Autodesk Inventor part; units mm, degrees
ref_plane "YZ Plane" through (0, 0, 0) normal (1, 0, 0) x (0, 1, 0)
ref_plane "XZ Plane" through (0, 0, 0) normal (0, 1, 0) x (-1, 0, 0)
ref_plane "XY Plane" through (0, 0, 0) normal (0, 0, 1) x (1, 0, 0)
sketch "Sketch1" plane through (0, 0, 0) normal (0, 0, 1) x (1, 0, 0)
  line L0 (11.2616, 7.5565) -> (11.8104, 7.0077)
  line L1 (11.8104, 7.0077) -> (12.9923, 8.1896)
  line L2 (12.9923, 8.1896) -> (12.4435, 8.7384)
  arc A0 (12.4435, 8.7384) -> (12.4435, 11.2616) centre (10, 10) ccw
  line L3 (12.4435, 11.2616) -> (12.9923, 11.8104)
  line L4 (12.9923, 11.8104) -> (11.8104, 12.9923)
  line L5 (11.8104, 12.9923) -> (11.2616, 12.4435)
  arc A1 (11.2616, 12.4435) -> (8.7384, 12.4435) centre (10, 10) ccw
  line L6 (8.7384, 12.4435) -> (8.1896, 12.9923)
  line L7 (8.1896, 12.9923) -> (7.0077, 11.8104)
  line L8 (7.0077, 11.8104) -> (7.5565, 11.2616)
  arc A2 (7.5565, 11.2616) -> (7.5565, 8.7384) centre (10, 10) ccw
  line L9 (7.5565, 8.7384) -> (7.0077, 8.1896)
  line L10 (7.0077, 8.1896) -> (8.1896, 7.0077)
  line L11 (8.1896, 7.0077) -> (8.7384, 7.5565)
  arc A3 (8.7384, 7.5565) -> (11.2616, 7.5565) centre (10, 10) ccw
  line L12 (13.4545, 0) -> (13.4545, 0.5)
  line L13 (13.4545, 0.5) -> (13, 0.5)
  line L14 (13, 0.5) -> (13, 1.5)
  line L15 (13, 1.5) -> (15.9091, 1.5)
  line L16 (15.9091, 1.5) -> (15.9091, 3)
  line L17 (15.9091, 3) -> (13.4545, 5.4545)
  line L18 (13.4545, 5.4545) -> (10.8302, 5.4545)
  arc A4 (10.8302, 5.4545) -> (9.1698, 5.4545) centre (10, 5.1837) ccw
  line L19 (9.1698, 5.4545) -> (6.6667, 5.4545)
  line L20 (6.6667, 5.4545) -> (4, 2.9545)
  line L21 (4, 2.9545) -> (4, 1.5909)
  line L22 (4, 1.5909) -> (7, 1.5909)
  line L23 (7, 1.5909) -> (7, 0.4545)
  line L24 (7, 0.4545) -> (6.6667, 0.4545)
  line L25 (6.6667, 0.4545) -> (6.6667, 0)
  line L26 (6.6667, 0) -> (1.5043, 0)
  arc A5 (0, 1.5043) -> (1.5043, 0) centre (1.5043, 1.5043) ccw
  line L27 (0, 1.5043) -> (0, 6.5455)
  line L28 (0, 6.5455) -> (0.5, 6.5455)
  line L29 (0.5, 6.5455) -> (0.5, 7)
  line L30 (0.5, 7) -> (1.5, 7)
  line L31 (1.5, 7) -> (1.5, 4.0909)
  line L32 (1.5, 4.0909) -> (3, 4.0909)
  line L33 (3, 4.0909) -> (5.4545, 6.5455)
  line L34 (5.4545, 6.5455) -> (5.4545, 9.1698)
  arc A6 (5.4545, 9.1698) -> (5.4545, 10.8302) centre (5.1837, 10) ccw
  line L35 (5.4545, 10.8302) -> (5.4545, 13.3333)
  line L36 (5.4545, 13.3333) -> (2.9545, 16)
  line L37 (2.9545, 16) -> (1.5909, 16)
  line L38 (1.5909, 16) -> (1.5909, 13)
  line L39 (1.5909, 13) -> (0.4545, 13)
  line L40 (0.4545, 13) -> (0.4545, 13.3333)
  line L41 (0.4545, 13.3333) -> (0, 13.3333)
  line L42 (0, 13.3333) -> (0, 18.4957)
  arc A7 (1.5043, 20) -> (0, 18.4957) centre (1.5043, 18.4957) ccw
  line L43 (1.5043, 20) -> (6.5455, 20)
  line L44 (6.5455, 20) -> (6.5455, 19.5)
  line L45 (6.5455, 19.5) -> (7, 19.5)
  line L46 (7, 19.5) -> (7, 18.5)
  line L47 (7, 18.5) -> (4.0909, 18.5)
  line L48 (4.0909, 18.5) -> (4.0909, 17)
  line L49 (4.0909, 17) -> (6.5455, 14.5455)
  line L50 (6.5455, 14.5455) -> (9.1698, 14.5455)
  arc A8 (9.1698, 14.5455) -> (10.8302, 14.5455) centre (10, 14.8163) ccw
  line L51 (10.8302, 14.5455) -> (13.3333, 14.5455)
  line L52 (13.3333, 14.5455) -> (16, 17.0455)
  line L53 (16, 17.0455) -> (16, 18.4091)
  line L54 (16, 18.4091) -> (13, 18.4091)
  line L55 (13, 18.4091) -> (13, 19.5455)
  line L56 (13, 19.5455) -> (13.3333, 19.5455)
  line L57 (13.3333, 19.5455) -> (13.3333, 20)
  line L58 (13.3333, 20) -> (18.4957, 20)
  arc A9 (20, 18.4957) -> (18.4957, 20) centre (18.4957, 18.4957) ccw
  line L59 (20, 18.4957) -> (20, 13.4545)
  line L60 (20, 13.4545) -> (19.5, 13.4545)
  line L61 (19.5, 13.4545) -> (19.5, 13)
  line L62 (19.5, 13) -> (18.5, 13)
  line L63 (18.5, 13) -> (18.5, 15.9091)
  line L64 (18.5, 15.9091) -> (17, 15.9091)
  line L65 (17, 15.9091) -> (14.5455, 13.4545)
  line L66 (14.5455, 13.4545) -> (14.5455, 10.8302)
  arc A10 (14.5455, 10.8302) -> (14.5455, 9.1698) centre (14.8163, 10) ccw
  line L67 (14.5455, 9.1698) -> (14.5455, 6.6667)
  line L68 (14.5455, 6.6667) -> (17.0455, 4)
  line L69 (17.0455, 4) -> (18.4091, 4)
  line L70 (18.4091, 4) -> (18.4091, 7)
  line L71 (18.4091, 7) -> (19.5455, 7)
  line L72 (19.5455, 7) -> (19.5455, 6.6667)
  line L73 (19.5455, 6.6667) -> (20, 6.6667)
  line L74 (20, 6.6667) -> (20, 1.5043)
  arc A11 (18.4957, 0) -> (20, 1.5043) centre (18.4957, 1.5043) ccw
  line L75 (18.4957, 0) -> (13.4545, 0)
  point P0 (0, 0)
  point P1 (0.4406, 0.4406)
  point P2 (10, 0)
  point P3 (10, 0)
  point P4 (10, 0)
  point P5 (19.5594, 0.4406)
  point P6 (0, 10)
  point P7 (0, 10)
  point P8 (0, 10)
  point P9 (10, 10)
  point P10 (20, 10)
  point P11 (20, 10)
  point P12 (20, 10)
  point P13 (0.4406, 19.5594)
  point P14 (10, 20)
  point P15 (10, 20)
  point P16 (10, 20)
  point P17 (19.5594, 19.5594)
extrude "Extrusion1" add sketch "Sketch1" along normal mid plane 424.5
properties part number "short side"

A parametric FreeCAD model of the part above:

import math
import FreeCAD as App
import Part
import Sketcher
from FreeCAD import Vector

doc = App.newDocument("Part")
body = doc.addObject("PartDesign::Body", "Body")

sketch1 = body.newObject("Sketcher::SketchObject", "Sketch")
sketch1.AttachmentSupport = (doc.getObject("XY_Plane"), [""])
sketch1.MapMode = "FlatFace"
sketch1.addGeometry(Part.LineSegment(Vector(13.45, 0.5, 0), Vector(13.45, 0, 0)), False)
sketch1.addGeometry(Part.LineSegment(Vector(13.45, 0, 0), Vector(18.5, 0, 0)), False)
sketch1.addGeometry(Part.ArcOfCircle(Part.Circle(Vector(18.5, 1.5, 0), Vector(0, 0, 1), 1.5), math.radians(-90), math.radians(0)), False)
sketch1.addGeometry(Part.LineSegment(Vector(20, 1.5, 0), Vector(20, 6.67, 0)), False)
sketch1.addGeometry(Part.LineSegment(Vector(20, 6.67, 0), Vector(19.55, 6.67, 0)), False)
sketch1.addGeometry(Part.LineSegment(Vector(19.55, 6.67, 0), Vector(19.55, 7, 0)), False)
sketch1.addGeometry(Part.LineSegment(Vector(19.55, 7, 0), Vector(18.41, 7, 0)), False)
sketch1.addGeometry(Part.LineSegment(Vector(18.41, 7, 0), Vector(18.41, 4, 0)), False)
sketch1.addGeometry(Part.LineSegment(Vector(18.41, 4, 0), Vector(17.05, 4, 0)), False)
sketch1.addGeometry(Part.LineSegment(Vector(17.05, 4, 0), Vector(14.55, 6.67, 0)), False)
sketch1.addGeometry(Part.LineSegment(Vector(14.55, 6.67, 0), Vector(14.55, 9.17, 0)), False)
sketch1.addGeometry(Part.ArcOfCircle(Part.Circle(Vector(14.82, 10, 0), Vector(0, 0, 1), 0.87), math.radians(108), math.radians(252)), False)
sketch1.addGeometry(Part.LineSegment(Vector(14.55, 10.83, 0), Vector(14.55, 13.45, 0)), False)
sketch1.addGeometry(Part.LineSegment(Vector(14.55, 13.45, 0), Vector(17, 15.91, 0)), False)
sketch1.addGeometry(Part.LineSegment(Vector(17, 15.91, 0), Vector(18.5, 15.91, 0)), False)
sketch1.addGeometry(Part.LineSegment(Vector(18.5, 15.91, 0), Vector(18.5, 13, 0)), False)
sketch1.addGeometry(Part.LineSegment(Vector(18.5, 13, 0), Vector(19.5, 13, 0)), False)
sketch1.addGeometry(Part.LineSegment(Vector(19.5, 13, 0), Vector(19.5, 13.45, 0)), False)
sketch1.addGeometry(Part.LineSegment(Vector(19.5, 13.45, 0), Vector(20, 13.45, 0)), False)
sketch1.addGeometry(Part.LineSegment(Vector(20, 13.45, 0), Vector(20, 18.5, 0)), False)
sketch1.addGeometry(Part.ArcOfCircle(Part.Circle(Vector(18.5, 18.5, 0), Vector(0, 0, 1), 1.5), math.radians(0), math.radians(90)), False)
sketch1.addGeometry(Part.LineSegment(Vector(18.5, 20, 0), Vector(13.33, 20, 0)), False)
sketch1.addGeometry(Part.LineSegment(Vector(13.33, 20, 0), Vector(13.33, 19.55, 0)), False)
sketch1.addGeometry(Part.LineSegment(Vector(13.33, 19.55, 0), Vector(13, 19.55, 0)), False)
sketch1.addGeometry(Part.LineSegment(Vector(13, 19.55, 0), Vector(13, 18.41, 0)), False)
sketch1.addGeometry(Part.LineSegment(Vector(13, 18.41, 0), Vector(16, 18.41, 0)), False)
sketch1.addGeometry(Part.LineSegment(Vector(16, 18.41, 0), Vector(16, 17.05, 0)), False)
sketch1.addGeometry(Part.LineSegment(Vector(16, 17.05, 0), Vector(13.33, 14.55, 0)), False)
sketch1.addGeometry(Part.LineSegment(Vector(13.33, 14.55, 0), Vector(10.83, 14.55, 0)), False)
sketch1.addGeometry(Part.ArcOfCircle(Part.Circle(Vector(10, 14.82, 0), Vector(0, 0, 1), 0.87), math.radians(-162), math.radians(-18)), False)
sketch1.addGeometry(Part.LineSegment(Vector(9.17, 14.55, 0), Vector(6.55, 14.55, 0)), False)
sketch1.addGeometry(Part.LineSegment(Vector(6.55, 14.55, 0), Vector(4.09, 17, 0)), False)
sketch1.addGeometry(Part.LineSegment(Vector(4.09, 17, 0), Vector(4.09, 18.5, 0)), False)
sketch1.addGeometry(Part.LineSegment(Vector(4.09, 18.5, 0), Vector(7, 18.5, 0)), False)
sketch1.addGeometry(Part.LineSegment(Vector(7, 18.5, 0), Vector(7, 19.5, 0)), False)
sketch1.addGeometry(Part.LineSegment(Vector(7, 19.5, 0), Vector(6.55, 19.5, 0)), False)
sketch1.addGeometry(Part.LineSegment(Vector(6.55, 19.5, 0), Vector(6.55, 20, 0)), False)
sketch1.addGeometry(Part.LineSegment(Vector(6.55, 20, 0), Vector(1.5, 20, 0)), False)
sketch1.addGeometry(Part.ArcOfCircle(Part.Circle(Vector(1.5, 18.5, 0), Vector(0, 0, 1), 1.5), math.radians(90), math.radians(180)), False)
sketch1.addGeometry(Part.LineSegment(Vector(0, 18.5, 0), Vector(0, 13.33, 0)), False)
sketch1.addGeometry(Part.LineSegment(Vector(0, 13.33, 0), Vector(0.45, 13.33, 0)), False)
sketch1.addGeometry(Part.LineSegment(Vector(0.45, 13.33, 0), Vector(0.45, 13, 0)), False)
sketch1.addGeometry(Part.LineSegment(Vector(0.45, 13, 0), Vector(1.59, 13, 0)), False)
sketch1.addGeometry(Part.LineSegment(Vector(1.59, 13, 0), Vector(1.59, 16, 0)), False)
sketch1.addGeometry(Part.LineSegment(Vector(1.59, 16, 0), Vector(2.95, 16, 0)), False)
sketch1.addGeometry(Part.LineSegment(Vector(2.95, 16, 0), Vector(5.45, 13.33, 0)), False)
sketch1.addGeometry(Part.LineSegment(Vector(5.45, 13.33, 0), Vector(5.45, 10.83, 0)), False)
sketch1.addGeometry(Part.ArcOfCircle(Part.Circle(Vector(5.18, 10, 0), Vector(0, 0, 1), 0.87), math.radians(-72), math.radians(72)), False)
sketch1.addGeometry(Part.LineSegment(Vector(5.45, 9.17, 0), Vector(5.45, 6.55, 0)), False)
sketch1.addGeometry(Part.LineSegment(Vector(5.45, 6.55, 0), Vector(3, 4.09, 0)), False)
sketch1.addGeometry(Part.LineSegment(Vector(3, 4.09, 0), Vector(1.5, 4.09, 0)), False)
sketch1.addGeometry(Part.LineSegment(Vector(1.5, 4.09, 0), Vector(1.5, 7, 0)), False)
sketch1.addGeometry(Part.LineSegment(Vector(1.5, 7, 0), Vector(0.5, 7, 0)), False)
sketch1.addGeometry(Part.LineSegment(Vector(0.5, 7, 0), Vector(0.5, 6.55, 0)), False)
sketch1.addGeometry(Part.LineSegment(Vector(0.5, 6.55, 0), Vector(0, 6.55, 0)), False)
sketch1.addGeometry(Part.LineSegment(Vector(0, 6.55, 0), Vector(0, 1.5, 0)), False)
sketch1.addGeometry(Part.ArcOfCircle(Part.Circle(Vector(1.5, 1.5, 0), Vector(0, 0, 1), 1.5), math.radians(180), math.radians(270)), False)
sketch1.addGeometry(Part.LineSegment(Vector(1.5, 0, 0), Vector(6.67, 0, 0)), False)
sketch1.addGeometry(Part.LineSegment(Vector(6.67, 0, 0), Vector(6.67, 0.45, 0)), False)
sketch1.addGeometry(Part.LineSegment(Vector(6.67, 0.45, 0), Vector(7, 0.45, 0)), False)
sketch1.addGeometry(Part.LineSegment(Vector(7, 0.45, 0), Vector(7, 1.59, 0)), False)
sketch1.addGeometry(Part.LineSegment(Vector(7, 1.59, 0), Vector(4, 1.59, 0)), False)
sketch1.addGeometry(Part.LineSegment(Vector(4, 1.59, 0), Vector(4, 2.95, 0)), False)
sketch1.addGeometry(Part.LineSegment(Vector(4, 2.95, 0), Vector(6.67, 5.45, 0)), False)
sketch1.addGeometry(Part.LineSegment(Vector(6.67, 5.45, 0), Vector(9.17, 5.45, 0)), False)
sketch1.addGeometry(Part.ArcOfCircle(Part.Circle(Vector(10, 5.18, 0), Vector(0, 0, 1), 0.87), math.radians(18), math.radians(162)), False)
sketch1.addGeometry(Part.LineSegment(Vector(10.83, 5.45, 0), Vector(13.45, 5.45, 0)), False)
sketch1.addGeometry(Part.LineSegment(Vector(13.45, 5.45, 0), Vector(15.91, 3, 0)), False)
sketch1.addGeometry(Part.LineSegment(Vector(15.91, 3, 0), Vector(15.91, 1.5, 0)), False)
sketch1.addGeometry(Part.LineSegment(Vector(15.91, 1.5, 0), Vector(13, 1.5, 0)), False)
sketch1.addGeometry(Part.LineSegment(Vector(13, 1.5, 0), Vector(13, 0.5, 0)), False)
sketch1.addGeometry(Part.LineSegment(Vector(13, 0.5, 0), Vector(13.45, 0.5, 0)), False)
sketch1.addGeometry(Part.LineSegment(Vector(11.81, 7.01, 0), Vector(11.26, 7.56, 0)), False)
sketch1.addGeometry(Part.ArcOfCircle(Part.Circle(Vector(10, 10, 0), Vector(0, 0, 1), 2.75), math.radians(-117), math.radians(-63)), False)
sketch1.addGeometry(Part.LineSegment(Vector(8.74, 7.56, 0), Vector(8.19, 7.01, 0)), False)
sketch1.addGeometry(Part.LineSegment(Vector(8.19, 7.01, 0), Vector(7.01, 8.19, 0)), False)
sketch1.addGeometry(Part.LineSegment(Vector(7.01, 8.19, 0), Vector(7.56, 8.74, 0)), False)
sketch1.addGeometry(Part.ArcOfCircle(Part.Circle(Vector(10, 10, 0), Vector(0, 0, 1), 2.75), math.radians(153), math.radians(207)), False)
sketch1.addGeometry(Part.LineSegment(Vector(7.56, 11.26, 0), Vector(7.01, 11.81, 0)), False)
sketch1.addGeometry(Part.LineSegment(Vector(7.01, 11.81, 0), Vector(8.19, 12.99, 0)), False)
sketch1.addGeometry(Part.LineSegment(Vector(8.19, 12.99, 0), Vector(8.74, 12.44, 0)), False)
sketch1.addGeometry(Part.ArcOfCircle(Part.Circle(Vector(10, 10, 0), Vector(0, 0, 1), 2.75), math.radians(63), math.radians(117)), False)
sketch1.addGeometry(Part.LineSegment(Vector(11.26, 12.44, 0), Vector(11.81, 12.99, 0)), False)
sketch1.addGeometry(Part.LineSegment(Vector(11.81, 12.99, 0), Vector(12.99, 11.81, 0)), False)
sketch1.addGeometry(Part.LineSegment(Vector(12.99, 11.81, 0), Vector(12.44, 11.26, 0)), False)
sketch1.addGeometry(Part.ArcOfCircle(Part.Circle(Vector(10, 10, 0), Vector(0, 0, 1), 2.75), math.radians(-27), math.radians(27)), False)
sketch1.addGeometry(Part.LineSegment(Vector(12.44, 8.74, 0), Vector(12.99, 8.19, 0)), False)
sketch1.addGeometry(Part.LineSegment(Vector(12.99, 8.19, 0), Vector(11.81, 7.01, 0)), False)
sketch1.addConstraint(Sketcher.Constraint("Coincident", 0, 2, 1, 1))
sketch1.addConstraint(Sketcher.Constraint("Tangent", 1, 2, 2, 1))
sketch1.addConstraint(Sketcher.Constraint("Tangent", 2, 2, 3, 1))
sketch1.addConstraint(Sketcher.Constraint("Coincident", 3, 2, 4, 1))
sketch1.addConstraint(Sketcher.Constraint("Coincident", 4, 2, 5, 1))
sketch1.addConstraint(Sketcher.Constraint("Coincident", 5, 2, 6, 1))
sketch1.addConstraint(Sketcher.Constraint("Coincident", 6, 2, 7, 1))
sketch1.addConstraint(Sketcher.Constraint("Coincident", 7, 2, 8, 1))
sketch1.addConstraint(Sketcher.Constraint("Coincident", 8, 2, 9, 1))
sketch1.addConstraint(Sketcher.Constraint("Coincident", 9, 2, 10, 1))
sketch1.addConstraint(Sketcher.Constraint("Coincident", 10, 2, 11, 2))
sketch1.addConstraint(Sketcher.Constraint("Coincident", 11, 1, 12, 1))
sketch1.addConstraint(Sketcher.Constraint("Coincident", 12, 2, 13, 1))
sketch1.addConstraint(Sketcher.Constraint("Coincident", 13, 2, 14, 1))
sketch1.addConstraint(Sketcher.Constraint("Coincident", 14, 2, 15, 1))
sketch1.addConstraint(Sketcher.Constraint("Coincident", 15, 2, 16, 1))
sketch1.addConstraint(Sketcher.Constraint("Coincident", 16, 2, 17, 1))
sketch1.addConstraint(Sketcher.Constraint("Coincident", 17, 2, 18, 1))
sketch1.addConstraint(Sketcher.Constraint("Coincident", 18, 2, 19, 1))
sketch1.addConstraint(Sketcher.Constraint("Tangent", 19, 2, 20, 1))
sketch1.addConstraint(Sketcher.Constraint("Tangent", 20, 2, 21, 1))
sketch1.addConstraint(Sketcher.Constraint("Coincident", 21, 2, 22, 1))
sketch1.addConstraint(Sketcher.Constraint("Coincident", 22, 2, 23, 1))
sketch1.addConstraint(Sketcher.Constraint("Coincident", 23, 2, 24, 1))
sketch1.addConstraint(Sketcher.Constraint("Coincident", 24, 2, 25, 1))
sketch1.addConstraint(Sketcher.Constraint("Coincident", 25, 2, 26, 1))
sketch1.addConstraint(Sketcher.Constraint("Coincident", 26, 2, 27, 1))
sketch1.addConstraint(Sketcher.Constraint("Coincident", 27, 2, 28, 1))
sketch1.addConstraint(Sketcher.Constraint("Coincident", 28, 2, 29, 2))
sketch1.addConstraint(Sketcher.Constraint("Coincident", 29, 1, 30, 1))
sketch1.addConstraint(Sketcher.Constraint("Coincident", 30, 2, 31, 1))
sketch1.addConstraint(Sketcher.Constraint("Coincident", 31, 2, 32, 1))
sketch1.addConstraint(Sketcher.Constraint("Coincident", 32, 2, 33, 1))
sketch1.addConstraint(Sketcher.Constraint("Coincident", 33, 2, 34, 1))
sketch1.addConstraint(Sketcher.Constraint("Coincident", 34, 2, 35, 1))
sketch1.addConstraint(Sketcher.Constraint("Coincident", 35, 2, 36, 1))
sketch1.addConstraint(Sketcher.Constraint("Coincident", 36, 2, 37, 1))
sketch1.addConstraint(Sketcher.Constraint("Tangent", 37, 2, 38, 1))
sketch1.addConstraint(Sketcher.Constraint("Tangent", 38, 2, 39, 1))
sketch1.addConstraint(Sketcher.Constraint("Coincident", 39, 2, 40, 1))
sketch1.addConstraint(Sketcher.Constraint("Coincident", 40, 2, 41, 1))
sketch1.addConstraint(Sketcher.Constraint("Coincident", 41, 2, 42, 1))
sketch1.addConstraint(Sketcher.Constraint("Coincident", 42, 2, 43, 1))
sketch1.addConstraint(Sketcher.Constraint("Coincident", 43, 2, 44, 1))
sketch1.addConstraint(Sketcher.Constraint("Coincident", 44, 2, 45, 1))
sketch1.addConstraint(Sketcher.Constraint("Coincident", 45, 2, 46, 1))
sketch1.addConstraint(Sketcher.Constraint("Coincident", 46, 2, 47, 2))
sketch1.addConstraint(Sketcher.Constraint("Coincident", 47, 1, 48, 1))
sketch1.addConstraint(Sketcher.Constraint("Coincident", 48, 2, 49, 1))
sketch1.addConstraint(Sketcher.Constraint("Coincident", 49, 2, 50, 1))
sketch1.addConstraint(Sketcher.Constraint("Coincident", 50, 2, 51, 1))
sketch1.addConstraint(Sketcher.Constraint("Coincident", 51, 2, 52, 1))
sketch1.addConstraint(Sketcher.Constraint("Coincident", 52, 2, 53, 1))
sketch1.addConstraint(Sketcher.Constraint("Coincident", 53, 2, 54, 1))
sketch1.addConstraint(Sketcher.Constraint("Coincident", 54, 2, 55, 1))
sketch1.addConstraint(Sketcher.Constraint("Tangent", 55, 2, 56, 1))
sketch1.addConstraint(Sketcher.Constraint("Tangent", 56, 2, 57, 1))
sketch1.addConstraint(Sketcher.Constraint("Coincident", 57, 2, 58, 1))
sketch1.addConstraint(Sketcher.Constraint("Coincident", 58, 2, 59, 1))
sketch1.addConstraint(Sketcher.Constraint("Coincident", 59, 2, 60, 1))
sketch1.addConstraint(Sketcher.Constraint("Coincident", 60, 2, 61, 1))
sketch1.addConstraint(Sketcher.Constraint("Coincident", 61, 2, 62, 1))
sketch1.addConstraint(Sketcher.Constraint("Coincident", 62, 2, 63, 1))
sketch1.addConstraint(Sketcher.Constraint("Coincident", 63, 2, 64, 1))
sketch1.addConstraint(Sketcher.Constraint("Coincident", 64, 2, 65, 2))
sketch1.addConstraint(Sketcher.Constraint("Coincident", 65, 1, 66, 1))
sketch1.addConstraint(Sketcher.Constraint("Coincident", 66, 2, 67, 1))
sketch1.addConstraint(Sketcher.Constraint("Coincident", 67, 2, 68, 1))
sketch1.addConstraint(Sketcher.Constraint("Coincident", 68, 2, 69, 1))
sketch1.addConstraint(Sketcher.Constraint("Coincident", 69, 2, 70, 1))
sketch1.addConstraint(Sketcher.Constraint("Coincident", 70, 2, 71, 1))
sketch1.addConstraint(Sketcher.Constraint("Coincident", 71, 2, 0, 1))
sketch1.addConstraint(Sketcher.Constraint("Coincident", 72, 2, 73, 2))
sketch1.addConstraint(Sketcher.Constraint("Coincident", 73, 1, 74, 1))
sketch1.addConstraint(Sketcher.Constraint("Coincident", 74, 2, 75, 1))
sketch1.addConstraint(Sketcher.Constraint("Coincident", 75, 2, 76, 1))
sketch1.addConstraint(Sketcher.Constraint("Coincident", 76, 2, 77, 2))
sketch1.addConstraint(Sketcher.Constraint("Coincident", 77, 1, 78, 1))
sketch1.addConstraint(Sketcher.Constraint("Coincident", 78, 2, 79, 1))
sketch1.addConstraint(Sketcher.Constraint("Coincident", 79, 2, 80, 1))
sketch1.addConstraint(Sketcher.Constraint("Coincident", 80, 2, 81, 2))
sketch1.addConstraint(Sketcher.Constraint("Coincident", 81, 1, 82, 1))
sketch1.addConstraint(Sketcher.Constraint("Coincident", 82, 2, 83, 1))
sketch1.addConstraint(Sketcher.Constraint("Coincident", 83, 2, 84, 1))
sketch1.addConstraint(Sketcher.Constraint("Coincident", 84, 2, 85, 2))
sketch1.addConstraint(Sketcher.Constraint("Coincident", 85, 1, 86, 1))
sketch1.addConstraint(Sketcher.Constraint("Coincident", 86, 2, 87, 1))
sketch1.addConstraint(Sketcher.Constraint("Coincident", 87, 2, 72, 1))
sketch1.addConstraint(Sketcher.Constraint("Vertical", 0))
sketch1.addConstraint(Sketcher.Constraint("Horizontal", 1))
sketch1.addConstraint(Sketcher.Constraint("Vertical", 3))
sketch1.addConstraint(Sketcher.Constraint("Horizontal", 4))
sketch1.addConstraint(Sketcher.Constraint("Vertical", 5))
sketch1.addConstraint(Sketcher.Constraint("Horizontal", 6))
sketch1.addConstraint(Sketcher.Constraint("Vertical", 7))
sketch1.addConstraint(Sketcher.Constraint("Horizontal", 8))
sketch1.addConstraint(Sketcher.Constraint("Vertical", 10))
sketch1.addConstraint(Sketcher.Constraint("Vertical", 12))
sketch1.addConstraint(Sketcher.Constraint("Horizontal", 14))
sketch1.addConstraint(Sketcher.Constraint("Vertical", 15))
sketch1.addConstraint(Sketcher.Constraint("Horizontal", 16))
sketch1.addConstraint(Sketcher.Constraint("Vertical", 17))
sketch1.addConstraint(Sketcher.Constraint("Horizontal", 18))
sketch1.addConstraint(Sketcher.Constraint("Vertical", 19))
sketch1.addConstraint(Sketcher.Constraint("Horizontal", 21))
sketch1.addConstraint(Sketcher.Constraint("Vertical", 22))
sketch1.addConstraint(Sketcher.Constraint("Horizontal", 23))
sketch1.addConstraint(Sketcher.Constraint("Vertical", 24))
sketch1.addConstraint(Sketcher.Constraint("Horizontal", 25))
sketch1.addConstraint(Sketcher.Constraint("Vertical", 26))
sketch1.addConstraint(Sketcher.Constraint("Horizontal", 28))
sketch1.addConstraint(Sketcher.Constraint("Horizontal", 30))
sketch1.addConstraint(Sketcher.Constraint("Vertical", 32))
sketch1.addConstraint(Sketcher.Constraint("Horizontal", 33))
sketch1.addConstraint(Sketcher.Constraint("Vertical", 34))
sketch1.addConstraint(Sketcher.Constraint("Horizontal", 35))
sketch1.addConstraint(Sketcher.Constraint("Vertical", 36))
sketch1.addConstraint(Sketcher.Constraint("Horizontal", 37))
sketch1.addConstraint(Sketcher.Constraint("Vertical", 39))
sketch1.addConstraint(Sketcher.Constraint("Horizontal", 40))
sketch1.addConstraint(Sketcher.Constraint("Vertical", 41))
sketch1.addConstraint(Sketcher.Constraint("Horizontal", 42))
sketch1.addConstraint(Sketcher.Constraint("Vertical", 43))
sketch1.addConstraint(Sketcher.Constraint("Horizontal", 44))
sketch1.addConstraint(Sketcher.Constraint("Vertical", 46))
sketch1.addConstraint(Sketcher.Constraint("Vertical", 48))
sketch1.addConstraint(Sketcher.Constraint("Horizontal", 50))
sketch1.addConstraint(Sketcher.Constraint("Vertical", 51))
sketch1.addConstraint(Sketcher.Constraint("Horizontal", 52))
sketch1.addConstraint(Sketcher.Constraint("Vertical", 53))
sketch1.addConstraint(Sketcher.Constraint("Horizontal", 54))
sketch1.addConstraint(Sketcher.Constraint("Vertical", 55))
sketch1.addConstraint(Sketcher.Constraint("Horizontal", 57))
sketch1.addConstraint(Sketcher.Constraint("Vertical", 58))
sketch1.addConstraint(Sketcher.Constraint("Horizontal", 59))
sketch1.addConstraint(Sketcher.Constraint("Vertical", 60))
sketch1.addConstraint(Sketcher.Constraint("Horizontal", 61))
sketch1.addConstraint(Sketcher.Constraint("Vertical", 62))
sketch1.addConstraint(Sketcher.Constraint("Horizontal", 64))
sketch1.addConstraint(Sketcher.Constraint("Horizontal", 66))
sketch1.addConstraint(Sketcher.Constraint("Vertical", 68))
sketch1.addConstraint(Sketcher.Constraint("Horizontal", 69))
sketch1.addConstraint(Sketcher.Constraint("Vertical", 70))
sketch1.addConstraint(Sketcher.Constraint("Horizontal", 71))
sketch1.addConstraint(Sketcher.Constraint("Coincident", 77, 3, 73, 3))
sketch1.addConstraint(Sketcher.Constraint("Coincident", 81, 3, 73, 3))
sketch1.addConstraint(Sketcher.Constraint("Coincident", 85, 3, 73, 3))
sketch1.addConstraint(Sketcher.Constraint("Equal", 2, 20))
sketch1.addConstraint(Sketcher.Constraint("Equal", 11, 29))
sketch1.addConstraint(Sketcher.Constraint("Equal", 20, 38))
sketch1.addConstraint(Sketcher.Constraint("Equal", 29, 47))
sketch1.addConstraint(Sketcher.Constraint("Equal", 38, 56))
sketch1.addConstraint(Sketcher.Constraint("Equal", 47, 65))
sketch1.addConstraint(Sketcher.Constraint("Equal", 73, 77))
sketch1.addConstraint(Sketcher.Constraint("Equal", 77, 81))
sketch1.addConstraint(Sketcher.Constraint("Equal", 81, 85))
sketch1.addConstraint(Sketcher.Constraint("PointOnObject", 0, 2, -1))
sketch1.addConstraint(Sketcher.Constraint("PointOnObject", 38, 2, -2))
sketch1.addConstraint(Sketcher.Constraint("PointOnObject", 54, 2, -2))
sketch1.addConstraint(Sketcher.Constraint("PointOnObject", 56, 2, -1))
sketch1.addConstraint(Sketcher.Constraint("Perpendicular", 9, 27))
sketch1.addConstraint(Sketcher.Constraint("Perpendicular", 13, 31))
sketch1.addConstraint(Sketcher.Constraint("Perpendicular", 27, 45))
sketch1.addConstraint(Sketcher.Constraint("Perpendicular", 31, 49))
sketch1.addConstraint(Sketcher.Constraint("Perpendicular", 45, 63))
sketch1.addConstraint(Sketcher.Constraint("Perpendicular", 49, 67))
sketch1.addConstraint(Sketcher.Constraint("Parallel", 67, 72))
sketch1.addConstraint(Sketcher.Constraint("Perpendicular", 72, 74))
sketch1.addConstraint(Sketcher.Constraint("Perpendicular", 74, 75))
sketch1.addConstraint(Sketcher.Constraint("Perpendicular", 75, 76))
sketch1.addConstraint(Sketcher.Constraint("Perpendicular", 76, 78))
sketch1.addConstraint(Sketcher.Constraint("Perpendicular", 78, 79))
sketch1.addConstraint(Sketcher.Constraint("Perpendicular", 79, 80))
sketch1.addConstraint(Sketcher.Constraint("Perpendicular", 80, 82))
sketch1.addConstraint(Sketcher.Constraint("Perpendicular", 82, 83))
sketch1.addConstraint(Sketcher.Constraint("Perpendicular", 83, 84))
sketch1.addConstraint(Sketcher.Constraint("Perpendicular", 84, 86))
sketch1.addConstraint(Sketcher.Constraint("Perpendicular", 86, 87))
sketch1.addConstraint(Sketcher.Constraint("Horizontal", 20, 3, 38, 3))
sketch1.addConstraint(Sketcher.Constraint("Horizontal", 11, 3, 47, 3))
sketch1.addConstraint(Sketcher.Constraint("Horizontal", 47, 3, 73, 3))
sketch1.addConstraint(Sketcher.Constraint("Horizontal", 4, 2, 9, 2))
sketch1.addConstraint(Sketcher.Constraint("Horizontal", 12, 2, 17, 2))
sketch1.addConstraint(Sketcher.Constraint("Horizontal", 28, 2, 29, 1))
sketch1.addConstraint(Sketcher.Constraint("Horizontal", 16, 2, 41, 2))
sketch1.addConstraint(Sketcher.Constraint("Horizontal", 40, 2, 45, 2))
sketch1.addConstraint(Sketcher.Constraint("Horizontal", 11, 1, 46, 2))
sketch1.addConstraint(Sketcher.Constraint("Horizontal", 10, 2, 47, 1))
sketch1.addConstraint(Sketcher.Constraint("Horizontal", 6, 2, 51, 2))
sketch1.addConstraint(Sketcher.Constraint("Horizontal", 48, 2, 53, 2))
sketch1.addConstraint(Sketcher.Constraint("Horizontal", 64, 2, 65, 1))
sketch1.addConstraint(Sketcher.Constraint("Horizontal", 72, 2, 73, 1))
sketch1.addConstraint(Sketcher.Constraint("Horizontal", 80, 2, 81, 1))
sketch1.addConstraint(Sketcher.Constraint("Horizontal", 79, 2, 82, 2))
sketch1.addConstraint(Sketcher.Constraint("Horizontal", 78, 2, 83, 2))
sketch1.addConstraint(Sketcher.Constraint("Horizontal", 77, 1, 84, 2))
sketch1.addConstraint(Sketcher.Constraint("Horizontal", 76, 2, 85, 1))
sketch1.addConstraint(Sketcher.Constraint("Horizontal", 75, 2, 86, 2))
sketch1.addConstraint(Sketcher.Constraint("Vertical", 2, 3, 20, 3))
sketch1.addConstraint(Sketcher.Constraint("Vertical", 29, 3, 65, 3))
sketch1.addConstraint(Sketcher.Constraint("Vertical", 65, 3, 73, 3))
sketch1.addConstraint(Sketcher.Constraint("Vertical", 10, 2, 11, 1))
sketch1.addConstraint(Sketcher.Constraint("Vertical", 22, 2, 27, 2))
sketch1.addConstraint(Sketcher.Constraint("Vertical", 30, 2, 35, 2))
sketch1.addConstraint(Sketcher.Constraint("Vertical", 34, 2, 59, 2))
sketch1.addConstraint(Sketcher.Constraint("Vertical", 58, 2, 63, 2))
sketch1.addConstraint(Sketcher.Constraint("Vertical", 29, 1, 64, 2))
sketch1.addConstraint(Sketcher.Constraint("Vertical", 0, 2, 66, 2))
sketch1.addConstraint(Sketcher.Constraint("Vertical", 24, 2, 69, 2))
sketch1.addConstraint(Sketcher.Constraint("Vertical", 76, 2, 77, 1))
sketch1.addConstraint(Sketcher.Constraint("Vertical", 75, 2, 78, 2))
sketch1.addConstraint(Sketcher.Constraint("Vertical", 74, 2, 79, 2))
sketch1.addConstraint(Sketcher.Constraint("Equal", 4, 35))
sketch1.addConstraint(Sketcher.Constraint("Equal", 1, 37))
sketch1.addConstraint(Sketcher.Constraint("Equal", 35, 40))
sketch1.addConstraint(Sketcher.Constraint("Equal", 6, 42))
sketch1.addConstraint(Sketcher.Constraint("Equal", 8, 44))
sketch1.addConstraint(Sketcher.Constraint("Equal", 14, 50))
sketch1.addConstraint(Sketcher.Constraint("Equal", 16, 52))
sketch1.addConstraint(Sketcher.Constraint("Equal", 18, 54))
sketch1.addConstraint(Sketcher.Constraint("Equal", 21, 57))
sketch1.addConstraint(Sketcher.Constraint("Equal", 23, 59))
sketch1.addConstraint(Sketcher.Constraint("Equal", 25, 61))
sketch1.addConstraint(Sketcher.Constraint("Equal", 28, 64))
sketch1.addConstraint(Sketcher.Constraint("Equal", 33, 69))
sketch1.addConstraint(Sketcher.Constraint("Equal", 54, 0))
sketch1.addConstraint(Sketcher.Constraint("Equal", 57, 3))
sketch1.addConstraint(Sketcher.Constraint("Equal", 59, 5))
sketch1.addConstraint(Sketcher.Constraint("Equal", 61, 7))
sketch1.addConstraint(Sketcher.Constraint("Equal", 64, 10))
sketch1.addConstraint(Sketcher.Constraint("Equal", 66, 12))
sketch1.addConstraint(Sketcher.Constraint("Equal", 69, 15))
sketch1.addConstraint(Sketcher.Constraint("Equal", 71, 17))
sketch1.addConstraint(Sketcher.Constraint("Equal", 37, 19))
sketch1.addConstraint(Sketcher.Constraint("Equal", 17, 22))
sketch1.addConstraint(Sketcher.Constraint("Equal", 42, 24))
sketch1.addConstraint(Sketcher.Constraint("Equal", 44, 26))
sketch1.addConstraint(Sketcher.Constraint("Equal", 50, 32))
sketch1.addConstraint(Sketcher.Constraint("Equal", 52, 34))
sketch1.addConstraint(Sketcher.Constraint("Equal", 3, 39))
sketch1.addConstraint(Sketcher.Constraint("Equal", 7, 43))
sketch1.addConstraint(Sketcher.Constraint("Equal", 12, 48))
sketch1.addConstraint(Sketcher.Constraint("Equal", 53, 58))
sketch1.addConstraint(Sketcher.Constraint("Equal", 24, 60))
sketch1.addConstraint(Sketcher.Constraint("Equal", 26, 62))
sketch1.addConstraint(Sketcher.Constraint("Equal", 32, 68))
sketch1.addConstraint(Sketcher.Constraint("Equal", 74, 76))
sketch1.addConstraint(Sketcher.Constraint("DistanceX", 16, 1, 16, 2, 1.0))
sketch1.addConstraint(Sketcher.Constraint("DistanceX", 25, 1, 25, 2, 3.0))
sketch1.addConstraint(Sketcher.Constraint("Radius", 73, 2.75))
sketch1.addConstraint(Sketcher.Constraint("DistanceX", 14, 1, 14, 2, 1.5))
sketch1.addConstraint(Sketcher.Constraint("DistanceX", 18, 1, 18, 2, 0.5))
sketch1.addConstraint(Sketcher.Constraint("DistanceY", -1, 1, 11, 3, 10.0))
sketch1.addConstraint(Sketcher.Constraint("DistanceX", -1, 1, 29, 3, 10.0))
sketch1.addConstraint(Sketcher.Constraint("DistanceY", -1, 1, 5, 2, 7.0))
sketch1.addConstraint(Sketcher.Constraint("Radius", 2, 1.5043))
sketch1.addConstraint(Sketcher.Constraint("Radius", 11, 0.8732))
sketch1.addConstraint(Sketcher.Constraint("DistanceX", 28, 2, 28, 1, 2.503))
sketch1.addConstraint(Sketcher.Constraint("DistanceX", 33, 1, 33, 2, 2.909))
sketch1.addConstraint(Sketcher.Constraint("DistanceX", 1, 1, 1, 2, 5.0412))
sketch1.addConstraint(Sketcher.Constraint("DistanceX", 6, 2, 6, 1, 1.1364))
sketch1.addConstraint(Sketcher.Constraint("DistanceX", 8, 2, 8, 1, 1.3636))
sketch1.addConstraint(Sketcher.Constraint("DistanceX", 21, 2, 21, 1, 5.1624))
sketch1.addConstraint(Sketcher.Constraint("Distance", 72, 0.7761))
sketch1.addConstraint(Sketcher.Constraint("Distance", 75, 1.6715))
pad1 = body.newObject("PartDesign::Pad", "Pad")
pad1.Profile = sketch1
pad1.Length = 424.5
pad1.Midplane = True

doc.recompute()
